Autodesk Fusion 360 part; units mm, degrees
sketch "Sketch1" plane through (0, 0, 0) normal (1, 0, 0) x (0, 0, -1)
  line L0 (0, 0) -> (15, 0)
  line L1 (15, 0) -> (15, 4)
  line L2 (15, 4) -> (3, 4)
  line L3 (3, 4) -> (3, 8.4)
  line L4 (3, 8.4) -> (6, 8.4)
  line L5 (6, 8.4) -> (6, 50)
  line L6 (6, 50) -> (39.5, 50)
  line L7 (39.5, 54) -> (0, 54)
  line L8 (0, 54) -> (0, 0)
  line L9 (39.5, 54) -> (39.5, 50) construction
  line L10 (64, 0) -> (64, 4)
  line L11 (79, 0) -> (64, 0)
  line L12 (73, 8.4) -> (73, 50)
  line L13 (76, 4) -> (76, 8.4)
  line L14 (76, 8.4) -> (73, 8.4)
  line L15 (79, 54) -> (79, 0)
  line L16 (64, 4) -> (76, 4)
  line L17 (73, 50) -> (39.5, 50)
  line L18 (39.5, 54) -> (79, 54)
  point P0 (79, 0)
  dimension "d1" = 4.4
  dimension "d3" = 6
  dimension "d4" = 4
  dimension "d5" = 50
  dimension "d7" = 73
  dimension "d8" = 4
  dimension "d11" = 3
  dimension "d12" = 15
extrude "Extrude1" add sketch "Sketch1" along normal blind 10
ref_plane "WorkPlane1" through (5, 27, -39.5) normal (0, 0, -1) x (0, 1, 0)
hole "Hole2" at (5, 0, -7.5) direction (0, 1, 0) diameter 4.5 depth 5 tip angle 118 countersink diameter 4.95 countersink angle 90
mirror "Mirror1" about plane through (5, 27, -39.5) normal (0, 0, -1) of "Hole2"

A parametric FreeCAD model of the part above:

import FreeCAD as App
import Part
import Sketcher

V = App.Vector
Q = App.Units.Quantity


def add_polygon(sketch, points):
    """Adds a closed chain of lines whose ends are joined by coincident constraints."""
    first, n = sketch.GeometryCount, len(points)
    for a, b in zip(points, points[1:] + points[:1]):
        sketch.addGeometry(Part.LineSegment(App.Vector(*a, 0), App.Vector(*b, 0)), False)
    for i in range(n):
        sketch.addConstraint(Sketcher.Constraint("Coincident", first + i, 2, first + (i + 1) % n, 1))

doc = App.newDocument("Part")
body = doc.addObject("PartDesign::Body", "Body")

sketch1 = body.newObject("Sketcher::SketchObject", "Sketch")
sketch1.AttachmentSupport = (doc.getObject("YZ_Plane"), [""])
sketch1.MapMode = "FlatFace"
add_polygon(sketch1, [(54, 0), (0, 0), (0, -15), (4, -15), (4, -3), (8.4, -3), (8.4, -6), (50, -6), (50, -73), (8.4, -73), (8.4, -76), (4, -76), (4, -64), (0, -64), (0, -79), (54, -79)])
sketch1.addConstraint(Sketcher.Constraint("Horizontal", 0))
sketch1.addConstraint(Sketcher.Constraint("Vertical", 1))
sketch1.addConstraint(Sketcher.Constraint("Horizontal", 2))
sketch1.addConstraint(Sketcher.Constraint("Vertical", 3))
sketch1.addConstraint(Sketcher.Constraint("Horizontal", 4))
sketch1.addConstraint(Sketcher.Constraint("Vertical", 5))
sketch1.addConstraint(Sketcher.Constraint("Horizontal", 6))
sketch1.addConstraint(Sketcher.Constraint("Vertical", 7))
sketch1.addConstraint(Sketcher.Constraint("Horizontal", 8))
sketch1.addConstraint(Sketcher.Constraint("Vertical", 9))
sketch1.addConstraint(Sketcher.Constraint("Horizontal", 10))
sketch1.addConstraint(Sketcher.Constraint("Vertical", 11))
sketch1.addConstraint(Sketcher.Constraint("Horizontal", 12))
sketch1.addConstraint(Sketcher.Constraint("Vertical", 13))
sketch1.addConstraint(Sketcher.Constraint("Horizontal", 14))
sketch1.addConstraint(Sketcher.Constraint("Vertical", 15))
sketch1.addConstraint(Sketcher.Constraint("Coincident", 0, 2, -1, 1))
sketch1.addConstraint(Sketcher.Constraint("PointOnObject", 12, 2, -2))
sketch1.addConstraint(Sketcher.Constraint("Vertical", 5, 2, 8, 2))
sketch1.addConstraint(Sketcher.Constraint("Vertical", 3, 2, 10, 2))
sketch1.addConstraint(Sketcher.Constraint("Equal", 5, 9))
sketch1.addConstraint(Sketcher.Constraint("Equal", 3, 11))
sketch1.addConstraint(Sketcher.Constraint("Equal", 1, 13))
sketch1.addConstraint(Sketcher.Constraint("DistanceX", 2, 1, 2, 2, Q("4 mm")))
sketch1.addConstraint(Sketcher.Constraint("DistanceY", 1, 2, 1, 1, Q("15 mm")))
sketch1.addConstraint(Sketcher.Constraint("DistanceY", 5, 2, 5, 1, Q("3 mm")))
sketch1.addConstraint(Sketcher.Constraint("DistanceX", 4, 1, 4, 2, Q("4.4 mm")))
sketch1.addConstraint(Sketcher.Constraint("DistanceY", 3, 2, -1, 1, Q("3 mm")))
sketch1.addConstraint(Sketcher.Constraint("DistanceX", -1, 1, 6, 2, Q("50 mm")))
sketch1.addConstraint(Sketcher.Constraint("DistanceY", 7, 2, -1, 1, Q("73 mm")))
sketch1.addConstraint(Sketcher.Constraint("DistanceX", 7, 2, 14, 2, Q("4 mm")))
pad1 = body.newObject("PartDesign::Pad", "Pad")
pad1.Profile = sketch1
pad1.Length = 10

sketch2 = body.newObject("Sketcher::SketchObject", "Sketch001")
sketch2.AttachmentSupport = (doc.getObject("XZ_Plane"), [""])
sketch2.MapMode = "FlatFace"
sketch2.addGeometry(Part.Circle(V(5, -7.5, 0), V(0, 0, 1), 2.2), False)
sketch2.addConstraint(Sketcher.Constraint("Diameter", 0, Q("4.5 mm")))
sketch2.addConstraint(Sketcher.Constraint("DistanceX", -1, 1, 0, 3, Q("5 mm")))
sketch2.addConstraint(Sketcher.Constraint("DistanceY", 0, 3, -1, 1, Q("7.5 mm")))
doc.recompute()
hole = body.newObject("PartDesign::Hole", "Hole")
hole.Profile = sketch2
hole.ThreadType = "None"
hole.Diameter = 4.5
hole.DepthType = "Dimension"
hole.Depth = 5
hole.DrillPoint = "Angled"
hole.DrillPointAngle = 118
hole.HoleCutType = "Countersink"
hole.HoleCutDiameter = 4.95
hole.HoleCutCountersinkAngle = 90
doc.recompute()

datumplane = body.newObject("PartDesign::Plane", "DatumPlane")
datumplane.AttachmentSupport = (doc.getObject("XY_Plane"), [""])
datumplane.MapMode = "FlatFace"
datumplane.AttachmentOffset = App.Placement(V(0, 0, -39.5), App.Rotation())
mirrored = body.newObject("PartDesign::Mirrored", "Mirrored")
mirrored.Originals = [hole]
mirrored.MirrorPlane = (datumplane, [""])
body.Tip = mirrored

doc.recompute()
